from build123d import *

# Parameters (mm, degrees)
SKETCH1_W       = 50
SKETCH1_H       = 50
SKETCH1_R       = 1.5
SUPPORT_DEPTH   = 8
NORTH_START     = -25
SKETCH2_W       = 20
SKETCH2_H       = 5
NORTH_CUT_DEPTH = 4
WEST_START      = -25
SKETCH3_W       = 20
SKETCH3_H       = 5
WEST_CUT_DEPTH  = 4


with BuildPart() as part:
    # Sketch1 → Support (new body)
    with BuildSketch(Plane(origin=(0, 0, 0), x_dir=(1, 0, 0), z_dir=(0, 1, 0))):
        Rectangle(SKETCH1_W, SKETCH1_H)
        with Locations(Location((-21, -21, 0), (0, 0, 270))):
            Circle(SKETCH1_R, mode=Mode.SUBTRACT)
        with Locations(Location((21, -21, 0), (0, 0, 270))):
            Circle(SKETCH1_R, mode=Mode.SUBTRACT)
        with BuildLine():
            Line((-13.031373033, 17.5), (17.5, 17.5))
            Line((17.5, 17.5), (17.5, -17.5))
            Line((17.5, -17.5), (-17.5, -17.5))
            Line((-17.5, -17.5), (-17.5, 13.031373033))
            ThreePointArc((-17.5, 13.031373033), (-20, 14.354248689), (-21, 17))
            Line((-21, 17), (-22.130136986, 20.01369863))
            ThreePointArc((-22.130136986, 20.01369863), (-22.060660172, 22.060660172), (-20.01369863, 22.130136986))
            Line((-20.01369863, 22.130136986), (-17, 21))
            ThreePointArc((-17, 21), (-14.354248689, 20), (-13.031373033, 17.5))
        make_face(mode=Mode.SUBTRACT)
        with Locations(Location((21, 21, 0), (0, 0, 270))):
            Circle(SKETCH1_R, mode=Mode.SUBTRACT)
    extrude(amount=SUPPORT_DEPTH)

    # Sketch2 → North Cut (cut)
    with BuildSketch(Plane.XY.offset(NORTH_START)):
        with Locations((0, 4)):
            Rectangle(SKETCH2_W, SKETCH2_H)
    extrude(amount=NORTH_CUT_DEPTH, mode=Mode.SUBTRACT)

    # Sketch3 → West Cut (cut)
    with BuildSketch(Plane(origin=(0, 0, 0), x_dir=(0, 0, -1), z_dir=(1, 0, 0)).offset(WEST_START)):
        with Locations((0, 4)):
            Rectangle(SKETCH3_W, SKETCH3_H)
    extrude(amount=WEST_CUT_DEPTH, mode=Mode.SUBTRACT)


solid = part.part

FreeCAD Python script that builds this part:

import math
import FreeCAD as App
import Part
import Sketcher
from FreeCAD import Vector
Q = App.Units.Quantity

doc = App.newDocument("Part")
params = doc.addObject("Spreadsheet::Sheet", "Params")
for row, (alias, value) in enumerate([
    ("sketch1_diameter", "3 mm"),
    ("sketch1_radius", "4 mm"),
    ("sketch1_width", "50 mm"),
    ("sketch1_width2", "35 mm"),
    ("pad1_length", "8 mm"),
    ("sketch2_width", "20 mm"),
    ("sketch2_height", "5 mm"),
    ("pocket1_length", "4 mm"),
    ("sketch3_width", "5 mm"),
    ("sketch3_height", "20 mm"),
    ("pocket2_length", "4 mm"),
], start=1):
    params.set(f"A{row}", alias)
    params.set(f"B{row}", "=" + value)
    params.setAlias(f"B{row}", alias)

body = doc.addObject("PartDesign::Body", "Body")

# Sketch on XZ plane
sketch1 = doc.addObject("Sketcher::SketchObject", "Sketch")
body.addObject(sketch1)
sketch1.AttachmentSupport = (doc.XZ_Plane, [""])
sketch1.MapMode = "FlatFace"
sketch1.addGeometry(Part.LineSegment(Vector(-25, -25, 0), Vector(-25, 25, 0)), False)
sketch1.addGeometry(Part.LineSegment(Vector(-25, 25, 0), Vector(25, 25, 0)), False)
sketch1.addGeometry(Part.LineSegment(Vector(25, 25, 0), Vector(25, -25, 0)), False)
sketch1.addGeometry(Part.LineSegment(Vector(25, -25, 0), Vector(-25, -25, 0)), False)
sketch1.addGeometry(Part.Circle(Vector(-21, 21, 0), Vector(0, 0, 1), 1.5), False)
sketch1.addGeometry(Part.Circle(Vector(21, 21, 0), Vector(0, 0, 1), 1.5), False)
sketch1.addGeometry(Part.ArcOfCircle(Part.Circle(Vector(-17, -17, 0), Vector(0, 0, 1), 4), math.radians(-90), math.radians(-7)), False)
sketch1.addGeometry(Part.LineSegment(Vector(-13, -17.5, 0), Vector(17.5, -17.5, 0)), False)
sketch1.addGeometry(Part.LineSegment(Vector(17.5, -17.5, 0), Vector(17.5, 17.5, 0)), False)
sketch1.addGeometry(Part.LineSegment(Vector(17.5, 17.5, 0), Vector(-17.5, 17.5, 0)), False)
sketch1.addGeometry(Part.LineSegment(Vector(-17.5, 17.5, 0), Vector(-17.5, -13, 0)), False)
sketch1.addGeometry(Part.ArcOfCircle(Part.Circle(Vector(-17, -17, 0), Vector(0, 0, 1), 4), math.radians(97), math.radians(180)), False)
sketch1.addGeometry(Part.LineSegment(Vector(-21, -17, 0), Vector(-22.1, -20, 0)), False)
sketch1.addGeometry(Part.ArcOfCircle(Part.Circle(Vector(-21, -21, 0), Vector(0, 0, 1), 1.5), math.radians(139), math.radians(311)), False)
sketch1.addGeometry(Part.LineSegment(Vector(-20, -22.1, 0), Vector(-17, -21, 0)), False)
sketch1.addGeometry(Part.Circle(Vector(21, -21, 0), Vector(0, 0, 1), 1.5), False)
sketch1.addConstraint(Sketcher.Constraint("Coincident", 0, 2, 1, 1))
sketch1.addConstraint(Sketcher.Constraint("Coincident", 1, 2, 2, 1))
sketch1.addConstraint(Sketcher.Constraint("Coincident", 2, 2, 3, 1))
sketch1.addConstraint(Sketcher.Constraint("Coincident", 3, 2, 0, 1))
sketch1.addConstraint(Sketcher.Constraint("Coincident", 6, 2, 7, 1))
sketch1.addConstraint(Sketcher.Constraint("Coincident", 7, 2, 8, 1))
sketch1.addConstraint(Sketcher.Constraint("Coincident", 8, 2, 9, 1))
sketch1.addConstraint(Sketcher.Constraint("Coincident", 9, 2, 10, 1))
sketch1.addConstraint(Sketcher.Constraint("Coincident", 10, 2, 11, 1))
sketch1.addConstraint(Sketcher.Constraint("Coincident", 11, 2, 12, 1))
sketch1.addConstraint(Sketcher.Constraint("Coincident", 12, 2, 13, 1))
sketch1.addConstraint(Sketcher.Constraint("Coincident", 13, 2, 14, 1))
sketch1.addConstraint(Sketcher.Constraint("Coincident", 14, 2, 6, 1))
sketch1.addConstraint(Sketcher.Constraint("Vertical", 0))
sketch1.addConstraint(Sketcher.Constraint("Horizontal", 1))
sketch1.addConstraint(Sketcher.Constraint("Vertical", 2))
sketch1.addConstraint(Sketcher.Constraint("Horizontal", 3))
sketch1.addConstraint(Sketcher.Constraint("Horizontal", 7))
sketch1.addConstraint(Sketcher.Constraint("Vertical", 8))
sketch1.addConstraint(Sketcher.Constraint("Horizontal", 9))
sketch1.addConstraint(Sketcher.Constraint("Vertical", 10))
sketch1.addConstraint(Sketcher.Constraint("Coincident", 11, 3, 6, 3))
sketch1.addConstraint(Sketcher.Constraint("Equal", 4, 5))
sketch1.addConstraint(Sketcher.Constraint("Equal", 6, 11))
sketch1.addConstraint(Sketcher.Constraint("Equal", 5, 13))
sketch1.addConstraint(Sketcher.Constraint("Equal", 13, 15))
sketch1.addConstraint(Sketcher.Constraint("Symmetric", 5, 3, 13, 3, -1, 1))
sketch1.addConstraint(Sketcher.Constraint("Symmetric", 4, 3, 15, 3, -1, 1))
sketch1.addConstraint(Sketcher.Constraint("Symmetric", 0, 2, 2, 2, -1, 1))
sketch1.addConstraint(Sketcher.Constraint("Symmetric", 7, 2, 9, 2, -1, 1))
sketch1.addConstraint(Sketcher.Constraint("Symmetric", 4, 3, 5, 3, -2))
sketch1.addConstraint(Sketcher.Constraint("Horizontal", 6, 3, 11, 2))
sketch1.addConstraint(Sketcher.Constraint("Horizontal", 15, 3, 14, 2))
sketch1.addConstraint(Sketcher.Constraint("Vertical", 13, 3, 11, 2))
sketch1.addConstraint(Sketcher.Constraint("Vertical", 11, 3, 14, 2))
sketch1.addConstraint(Sketcher.Constraint("Equal", 3, 0))
sketch1.addConstraint(Sketcher.Constraint("Equal", 9, 8))
sketch1.addConstraint(Sketcher.Constraint("Equal", 7, 10))
sketch1.addConstraint(Sketcher.Constraint("Equal", 12, 14))
sketch1.addConstraint(Sketcher.Constraint("Diameter", 4, Q("3 mm")))
sketch1.addConstraint(Sketcher.Constraint("Radius", 6, Q("4 mm")))
sketch1.addConstraint(Sketcher.Constraint("DistanceX", 1, 1, 1, 2, Q("50 mm")))
sketch1.addConstraint(Sketcher.Constraint("DistanceX", 9, 2, 9, 1, Q("35 mm")))
sketch1.addConstraint(Sketcher.Constraint("DistanceX", 4, 3, -1, 1, Q("21 mm")))
sketch1.addConstraint(Sketcher.Constraint("DistanceY", 12, 2, -1, 1, Q("20.013699 mm")))
sketch1.setExpression("Constraints[39]", "Params.sketch1_diameter")
sketch1.setExpression("Constraints[40]", "Params.sketch1_radius")
sketch1.setExpression("Constraints[41]", "Params.sketch1_width")
sketch1.setExpression("Constraints[42]", "Params.sketch1_width2")
pad1 = doc.addObject("PartDesign::Pad", "Pad")
body.addObject(pad1)
pad1.Profile = sketch1
pad1.setExpression("Length", "Params.pad1_length")
pad1.Reversed = True

# Sketch on XY plane
sketch2 = doc.addObject("Sketcher::SketchObject", "Sketch001")
body.addObject(sketch2)
sketch2.AttachmentSupport = (doc.XY_Plane, [""])
sketch2.MapMode = "FlatFace"
sketch2.AttachmentOffset = App.Placement(Vector(0, 0, -25), App.Rotation())
sketch2.addGeometry(Part.LineSegment(Vector(-10, 6, 0), Vector(-10, 2, 0)), False)
sketch2.addGeometry(Part.LineSegment(Vector(-10, 2, 0), Vector(10, 2, 0)), False)
sketch2.addGeometry(Part.LineSegment(Vector(10, 2, 0), Vector(10, 6, 0)), False)
sketch2.addGeometry(Part.LineSegment(Vector(10, 6, 0), Vector(-10, 6, 0)), False)
sketch2.addConstraint(Sketcher.Constraint("Coincident", 0, 2, 1, 1))
sketch2.addConstraint(Sketcher.Constraint("Coincident", 1, 2, 2, 1))
sketch2.addConstraint(Sketcher.Constraint("Coincident", 2, 2, 3, 1))
sketch2.addConstraint(Sketcher.Constraint("Coincident", 3, 2, 0, 1))
sketch2.addConstraint(Sketcher.Constraint("Vertical", 0))
sketch2.addConstraint(Sketcher.Constraint("Horizontal", 1))
sketch2.addConstraint(Sketcher.Constraint("Vertical", 2))
sketch2.addConstraint(Sketcher.Constraint("Horizontal", 3))
sketch2.addConstraint(Sketcher.Constraint("DistanceX", 1, 1, 1, 2, Q("20 mm")))
sketch2.addConstraint(Sketcher.Constraint("DistanceY", 0, 2, 0, 1, Q("5 mm")))
sketch2.addConstraint(Sketcher.Constraint("DistanceX", 0, 2, -1, 1, Q("10 mm")))
sketch2.addConstraint(Sketcher.Constraint("DistanceY", -1, 1, 0, 2, Q("1.5 mm")))
sketch2.setExpression("Constraints[8]", "Params.sketch2_width")
sketch2.setExpression("Constraints[9]", "Params.sketch2_height")
pocket1 = doc.addObject("PartDesign::Pocket", "Pocket")
body.addObject(pocket1)
pocket1.Profile = sketch2
pocket1.setExpression("Length", "Params.pocket1_length")
pocket1.Reversed = True

# Sketch on YZ plane
sketch3 = doc.addObject("Sketcher::SketchObject", "Sketch002")
body.addObject(sketch3)
sketch3.AttachmentSupport = (doc.YZ_Plane, [""])
sketch3.MapMode = "FlatFace"
sketch3.AttachmentOffset = App.Placement(Vector(0, 0, -25), App.Rotation())
sketch3.addGeometry(Part.LineSegment(Vector(6, 10, 0), Vector(2, 10, 0)), False)
sketch3.addGeometry(Part.LineSegment(Vector(2, 10, 0), Vector(2, -10, 0)), False)
sketch3.addGeometry(Part.LineSegment(Vector(2, -10, 0), Vector(6, -10, 0)), False)
sketch3.addGeometry(Part.LineSegment(Vector(6, -10, 0), Vector(6, 10, 0)), False)
sketch3.addConstraint(Sketcher.Constraint("Coincident", 0, 2, 1, 1))
sketch3.addConstraint(Sketcher.Constraint("Coincident", 1, 2, 2, 1))
sketch3.addConstraint(Sketcher.Constraint("Coincident", 2, 2, 3, 1))
sketch3.addConstraint(Sketcher.Constraint("Coincident", 3, 2, 0, 1))
sketch3.addConstraint(Sketcher.Constraint("Horizontal", 0))
sketch3.addConstraint(Sketcher.Constraint("Vertical", 1))
sketch3.addConstraint(Sketcher.Constraint("Horizontal", 2))
sketch3.addConstraint(Sketcher.Constraint("Vertical", 3))
sketch3.addConstraint(Sketcher.Constraint("DistanceX", 0, 2, 0, 1, Q("5 mm")))
sketch3.addConstraint(Sketcher.Constraint("DistanceY", 1, 2, 1, 1, Q("20 mm")))
sketch3.addConstraint(Sketcher.Constraint("DistanceY", -1, 1, 0, 2, Q("10 mm")))
sketch3.addConstraint(Sketcher.Constraint("DistanceX", -1, 1, 0, 2, Q("1.5 mm")))
sketch3.setExpression("Constraints[8]", "Params.sketch3_width")
sketch3.setExpression("Constraints[9]", "Params.sketch3_height")
pocket2 = doc.addObject("PartDesign::Pocket", "Pocket001")
body.addObject(pocket2)
pocket2.Profile = sketch3
pocket2.setExpression("Length", "Params.pocket2_length")
pocket2.Reversed = True

doc.recompute()
